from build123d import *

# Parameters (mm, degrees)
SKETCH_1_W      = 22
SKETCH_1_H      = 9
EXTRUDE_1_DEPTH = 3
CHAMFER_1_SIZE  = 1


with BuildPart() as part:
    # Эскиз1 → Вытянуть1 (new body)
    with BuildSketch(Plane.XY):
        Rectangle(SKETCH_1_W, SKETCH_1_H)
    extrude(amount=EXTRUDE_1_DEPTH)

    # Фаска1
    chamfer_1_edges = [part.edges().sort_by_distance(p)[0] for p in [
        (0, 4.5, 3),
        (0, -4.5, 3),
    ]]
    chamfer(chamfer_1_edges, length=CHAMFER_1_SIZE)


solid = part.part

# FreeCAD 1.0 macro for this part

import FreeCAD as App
import Part
import Sketcher

V = App.Vector


def edges_at(feature, points):
    """Names of the edges that pass closest to the given points."""
    edges = feature.Shape.Edges
    near = lambda p: min(range(len(edges)), key=lambda i: edges[i].distToShape(Part.Vertex(*p))[0])
    return sorted({f"Edge{near(p) + 1}" for p in points})


def add_polygon(sketch, points):
    """Adds a closed chain of lines whose ends are joined by coincident constraints."""
    first, n = sketch.GeometryCount, len(points)
    for a, b in zip(points, points[1:] + points[:1]):
        sketch.addGeometry(Part.LineSegment(App.Vector(*a, 0), App.Vector(*b, 0)), False)
    for i in range(n):
        sketch.addConstraint(Sketcher.Constraint("Coincident", first + i, 2, first + (i + 1) % n, 1))

doc = App.newDocument("Part")
body = doc.addObject("PartDesign::Body", "Body")

# Sketch on XY plane
sketch1 = doc.addObject("Sketcher::SketchObject", "Sketch")
body.addObject(sketch1)
sketch1.AttachmentSupport = (doc.XY_Plane, [""])
sketch1.MapMode = "FlatFace"
add_polygon(sketch1, [(-11, 4), (-11, -4), (11, -4), (11, 4)])  # lines 0-3
sketch1.addConstraint(Sketcher.Constraint("Vertical", 0))
sketch1.addConstraint(Sketcher.Constraint("Horizontal", 1))
sketch1.addConstraint(Sketcher.Constraint("Vertical", 2))
sketch1.addConstraint(Sketcher.Constraint("Horizontal", 3))
sketch1.addConstraint(Sketcher.Constraint("Symmetric", 0, 2, 2, 2, -1, 1))
sketch1.addConstraint(Sketcher.Constraint("DistanceX", 1, 1, 1, 2, 22.0))
sketch1.addConstraint(Sketcher.Constraint("DistanceY", 0, 2, 0, 1, 9.0))
pad1 = doc.addObject("PartDesign::Pad", "Pad")
body.addObject(pad1)
pad1.Profile = sketch1
pad1.Length = 3
doc.recompute()

chamfer = doc.addObject("PartDesign::Chamfer", "Chamfer")
body.addObject(chamfer)
chamfer.Base = (pad1, edges_at(pad1, [(0, 4.5, 3), (0, -4.5, 3)]))
chamfer.Size = 1

doc.recompute()
